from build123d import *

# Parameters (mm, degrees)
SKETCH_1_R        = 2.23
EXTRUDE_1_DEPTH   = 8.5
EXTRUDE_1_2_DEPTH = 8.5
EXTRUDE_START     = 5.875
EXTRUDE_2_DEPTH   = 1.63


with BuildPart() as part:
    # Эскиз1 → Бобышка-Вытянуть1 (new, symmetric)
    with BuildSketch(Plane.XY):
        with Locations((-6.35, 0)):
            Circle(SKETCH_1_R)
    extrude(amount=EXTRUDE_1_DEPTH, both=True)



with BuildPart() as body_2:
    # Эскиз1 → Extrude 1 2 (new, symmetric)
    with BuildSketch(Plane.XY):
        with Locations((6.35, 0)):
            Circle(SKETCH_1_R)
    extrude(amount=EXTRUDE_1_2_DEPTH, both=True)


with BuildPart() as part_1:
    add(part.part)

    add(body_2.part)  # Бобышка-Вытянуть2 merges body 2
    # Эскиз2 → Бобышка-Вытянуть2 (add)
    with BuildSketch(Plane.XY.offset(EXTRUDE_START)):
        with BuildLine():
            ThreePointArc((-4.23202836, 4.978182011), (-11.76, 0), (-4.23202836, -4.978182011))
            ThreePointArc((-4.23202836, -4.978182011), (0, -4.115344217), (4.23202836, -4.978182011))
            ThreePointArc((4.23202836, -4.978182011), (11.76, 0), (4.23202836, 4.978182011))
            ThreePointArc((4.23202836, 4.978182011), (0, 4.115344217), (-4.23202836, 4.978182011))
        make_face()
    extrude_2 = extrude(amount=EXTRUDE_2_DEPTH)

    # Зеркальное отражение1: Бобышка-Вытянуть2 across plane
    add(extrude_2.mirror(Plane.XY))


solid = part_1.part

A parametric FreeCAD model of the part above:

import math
import FreeCAD as App
import Part
import Sketcher

doc = App.newDocument("Part")
body = doc.addObject("PartDesign::Body", "Body")

# Sketch on XY plane
sketch1 = body.newObject("Sketcher::SketchObject", "Sketch")
sketch1.AttachmentSupport = (doc.getObject("XY_Plane"), [""])
sketch1.MapMode = "FlatFace"
sketch1.addGeometry(Part.Circle(App.Vector(-6.35, 0, 0), App.Vector(0, 0, 1), 2.23), False)
sketch1.addConstraint(Sketcher.Constraint("PointOnObject", 0, 3, -1))
sketch1.addConstraint(Sketcher.Constraint("Diameter", 0, 4.46))
sketch1.addConstraint(Sketcher.Constraint("DistanceX", 0, 3, -1, 1, 6.35))
pad1 = body.newObject("PartDesign::Pad", "Pad")
pad1.Profile = sketch1
pad1.Length = 17
pad1.Midplane = True
body2 = doc.addObject("PartDesign::Body", "Body001")

# Sketch on XY plane
sketch2 = body2.newObject("Sketcher::SketchObject", "Sketch001")
sketch2.AttachmentSupport = (doc.getObject("XY_Plane001"), [""])
sketch2.MapMode = "FlatFace"
sketch2.addGeometry(Part.Circle(App.Vector(6.35, 0, 0), App.Vector(0, 0, 1), 2.23), False)
sketch2.addConstraint(Sketcher.Constraint("PointOnObject", 0, 3, -1))
sketch2.addConstraint(Sketcher.Constraint("Diameter", 0, 4.46))
sketch2.addConstraint(Sketcher.Constraint("DistanceX", -1, 1, 0, 3, 6.35))
pad2 = body2.newObject("PartDesign::Pad", "Pad001")
pad2.Profile = sketch2
pad2.Length = 17
pad2.Midplane = True
body.AllowCompound = True
doc.recompute()

boolean = body.newObject("PartDesign::Boolean", "Boolean")
boolean.Type = "Fuse"
boolean.addObjects([body2])

# Sketch on XY plane
sketch3 = body.newObject("Sketcher::SketchObject", "Sketch002")
sketch3.AttachmentSupport = (doc.getObject("XY_Plane"), [""])
sketch3.MapMode = "FlatFace"
sketch3.AttachmentOffset = App.Placement(App.Vector(0, 0, 5.875), App.Rotation())
sketch3.addGeometry(Part.ArcOfCircle(Part.Circle(App.Vector(-6.35, 0, 0), App.Vector(0, 0, 1), 5.41), math.radians(66.952633), math.radians(293.047367)), False)
sketch3.addGeometry(Part.ArcOfCircle(Part.Circle(App.Vector(0, -14.925344, 0), App.Vector(0, 0, 1), 10.81), math.radians(66.952633), math.radians(113.047367)), False)
sketch3.addGeometry(Part.ArcOfCircle(Part.Circle(App.Vector(6.35, 0, 0), App.Vector(0, 0, 1), 5.41), math.radians(-113.047367), math.radians(113.047367)), False)
sketch3.addGeometry(Part.ArcOfCircle(Part.Circle(App.Vector(0, 14.925344, 0), App.Vector(0, 0, 1), 10.81), math.radians(-113.047367), math.radians(-66.952633)), False)
sketch3.addConstraint(Sketcher.Constraint("Tangent", 0, 2, 1, 2))
sketch3.addConstraint(Sketcher.Constraint("Tangent", 1, 1, 2, 1))
sketch3.addConstraint(Sketcher.Constraint("Tangent", 2, 2, 3, 2))
sketch3.addConstraint(Sketcher.Constraint("Tangent", 3, 1, 0, 1))
sketch3.addConstraint(Sketcher.Constraint("Equal", 0, 2))
sketch3.addConstraint(Sketcher.Constraint("Equal", 1, 3))
sketch3.addConstraint(Sketcher.Constraint("Symmetric", 0, 3, 2, 3, -1, 1))
sketch3.addConstraint(Sketcher.Constraint("PointOnObject", 0, 3, -1))
sketch3.addConstraint(Sketcher.Constraint("Radius", 0, 5.41))
sketch3.addConstraint(Sketcher.Constraint("Radius", 1, 10.81))
sketch3.addConstraint(Sketcher.Constraint("DistanceX", 0, 3, 2, 3, 12.7))
pad3 = body.newObject("PartDesign::Pad", "Pad002")
pad3.Profile = sketch3
pad3.Length = 1.63
doc.recompute()

mirrored = body.newObject("PartDesign::Mirrored", "Mirrored")
mirrored.Originals = [pad3]
mirrored.MirrorPlane = (doc.getObject("XY_Plane"), [""])
body.Tip = mirrored

doc.recompute()
